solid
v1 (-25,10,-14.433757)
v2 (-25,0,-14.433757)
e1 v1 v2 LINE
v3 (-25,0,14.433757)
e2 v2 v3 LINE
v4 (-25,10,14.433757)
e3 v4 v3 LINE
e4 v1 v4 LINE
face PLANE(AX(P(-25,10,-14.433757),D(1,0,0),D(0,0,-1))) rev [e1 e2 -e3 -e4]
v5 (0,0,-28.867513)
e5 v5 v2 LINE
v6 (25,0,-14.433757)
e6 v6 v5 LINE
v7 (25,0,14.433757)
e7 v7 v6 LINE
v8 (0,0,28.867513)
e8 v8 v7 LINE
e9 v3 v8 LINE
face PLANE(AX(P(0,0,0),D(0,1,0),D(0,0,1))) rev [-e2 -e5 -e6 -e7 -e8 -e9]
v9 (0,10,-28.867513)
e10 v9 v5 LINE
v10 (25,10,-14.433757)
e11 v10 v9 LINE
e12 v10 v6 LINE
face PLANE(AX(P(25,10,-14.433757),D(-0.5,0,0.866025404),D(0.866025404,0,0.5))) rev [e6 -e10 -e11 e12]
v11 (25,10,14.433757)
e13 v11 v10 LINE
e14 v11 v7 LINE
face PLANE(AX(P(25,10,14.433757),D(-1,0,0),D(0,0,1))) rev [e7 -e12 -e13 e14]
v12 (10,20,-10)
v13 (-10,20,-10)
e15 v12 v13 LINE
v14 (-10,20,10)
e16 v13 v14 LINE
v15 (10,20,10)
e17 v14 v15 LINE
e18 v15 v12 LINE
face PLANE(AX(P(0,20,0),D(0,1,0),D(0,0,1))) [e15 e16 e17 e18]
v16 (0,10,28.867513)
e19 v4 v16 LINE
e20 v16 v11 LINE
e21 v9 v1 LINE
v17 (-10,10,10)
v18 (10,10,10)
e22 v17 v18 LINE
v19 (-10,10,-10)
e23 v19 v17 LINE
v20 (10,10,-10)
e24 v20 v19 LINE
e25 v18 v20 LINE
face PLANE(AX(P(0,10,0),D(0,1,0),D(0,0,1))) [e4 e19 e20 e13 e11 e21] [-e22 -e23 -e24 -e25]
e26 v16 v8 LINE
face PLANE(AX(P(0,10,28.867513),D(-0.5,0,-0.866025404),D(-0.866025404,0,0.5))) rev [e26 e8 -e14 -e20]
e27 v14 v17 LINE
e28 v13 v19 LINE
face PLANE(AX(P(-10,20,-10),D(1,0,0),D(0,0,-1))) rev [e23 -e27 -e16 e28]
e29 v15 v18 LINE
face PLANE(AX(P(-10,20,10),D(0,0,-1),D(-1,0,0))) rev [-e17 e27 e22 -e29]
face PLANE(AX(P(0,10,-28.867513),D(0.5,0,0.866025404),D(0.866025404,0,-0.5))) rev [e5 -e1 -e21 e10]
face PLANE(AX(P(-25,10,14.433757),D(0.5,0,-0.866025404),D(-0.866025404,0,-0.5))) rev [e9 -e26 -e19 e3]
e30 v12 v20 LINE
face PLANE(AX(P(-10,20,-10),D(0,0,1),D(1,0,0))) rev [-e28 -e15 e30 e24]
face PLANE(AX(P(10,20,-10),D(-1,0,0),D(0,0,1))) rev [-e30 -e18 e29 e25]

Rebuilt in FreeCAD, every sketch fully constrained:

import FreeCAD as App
import Part
import Sketcher

V = App.Vector
Q = App.Units.Quantity

doc = App.newDocument("Part")
body = doc.addObject("PartDesign::Body", "Body")

# Sketch on XZ plane
sketch1 = body.newObject("Sketcher::SketchObject", "Sketch")
sketch1.AttachmentSupport = (doc.getObject("XZ_Plane"), [""])
sketch1.MapMode = "FlatFace"
sketch1.addGeometry([
    Part.LineSegment(V(25, -14.433757, 0), V(0, -28.867513, 0)),  # 0
    Part.LineSegment(V(0, -28.867513, 0), V(-25, -14.433757, 0)),  # 1
    Part.LineSegment(V(-25, -14.433757, 0), V(-25, 14.433757, 0)),  # 2
    Part.LineSegment(V(-25, 14.433757, 0), V(0, 28.867513, 0)),  # 3
    Part.LineSegment(V(0, 28.867513, 0), V(25, 14.433757, 0)),  # 4
    Part.LineSegment(V(25, 14.433757, 0), V(25, -14.433757, 0)),  # 5
], False)
sketch1.addConstraint([
    Sketcher.Constraint("Coincident", 0, 2, 1, 1),
    Sketcher.Constraint("Coincident", 1, 2, 2, 1),
    Sketcher.Constraint("Coincident", 2, 2, 3, 1),
    Sketcher.Constraint("Coincident", 3, 2, 4, 1),
    Sketcher.Constraint("Coincident", 4, 2, 5, 1),
    Sketcher.Constraint("Coincident", 5, 2, 0, 1),
    Sketcher.Constraint("Vertical", 2),
    Sketcher.Constraint("Vertical", 5),
    Sketcher.Constraint("Symmetric", 0, 2, 3, 2, -1, 1),
    Sketcher.Constraint("Symmetric", 1, 2, 4, 2, -1, 1),
    Sketcher.Constraint("PointOnObject", 0, 2, -2),
    Sketcher.Constraint("Parallel", 0, 3),
    Sketcher.Constraint("Horizontal", 2, 2, 4, 2),
    Sketcher.Constraint("Angle", 0, Q("-150 deg")),
    Sketcher.Constraint("DistanceX", 1, 2, -1, 1, 25.0),
    Sketcher.Constraint("DistanceY", 2, 1, 2, 2, 28.867513),
])
pad1 = body.newObject("PartDesign::Pad", "Pad")
pad1.Profile = sketch1
pad1.Length = 10
pad1.Reversed = True

# Sketch on XZ plane
sketch2 = body.newObject("Sketcher::SketchObject", "Sketch001")
sketch2.AttachmentSupport = (doc.getObject("XZ_Plane"), [""])
sketch2.MapMode = "FlatFace"
sketch2.AttachmentOffset = App.Placement(V(0, 0, -10), App.Rotation())
sketch2.addGeometry([
    Part.LineSegment(V(-10, -10, 0), V(-10, 10, 0)),
    Part.LineSegment(V(-10, 10, 0), V(10, 10, 0)),
    Part.LineSegment(V(10, 10, 0), V(10, -10, 0)),
    Part.LineSegment(V(10, -10, 0), V(-10, -10, 0)),
], False)
sketch2.addConstraint([
    Sketcher.Constraint("Coincident", 0, 2, 1, 1),
    Sketcher.Constraint("Coincident", 1, 2, 2, 1),
    Sketcher.Constraint("Coincident", 2, 2, 3, 1),
    Sketcher.Constraint("Coincident", 3, 2, 0, 1),
    Sketcher.Constraint("Vertical", 0),
    Sketcher.Constraint("Horizontal", 1),
    Sketcher.Constraint("Vertical", 2),
    Sketcher.Constraint("Horizontal", 3),
    Sketcher.Constraint("Symmetric", 0, 2, 2, 2, -1, 1),
    Sketcher.Constraint("Equal", 3, 0),
    Sketcher.Constraint("DistanceX", 1, 1, 1, 2, 20.0),
])
pad2 = body.newObject("PartDesign::Pad", "Pad001")
pad2.Profile = sketch2
pad2.Length = 10
pad2.Reversed = True

doc.recompute()
